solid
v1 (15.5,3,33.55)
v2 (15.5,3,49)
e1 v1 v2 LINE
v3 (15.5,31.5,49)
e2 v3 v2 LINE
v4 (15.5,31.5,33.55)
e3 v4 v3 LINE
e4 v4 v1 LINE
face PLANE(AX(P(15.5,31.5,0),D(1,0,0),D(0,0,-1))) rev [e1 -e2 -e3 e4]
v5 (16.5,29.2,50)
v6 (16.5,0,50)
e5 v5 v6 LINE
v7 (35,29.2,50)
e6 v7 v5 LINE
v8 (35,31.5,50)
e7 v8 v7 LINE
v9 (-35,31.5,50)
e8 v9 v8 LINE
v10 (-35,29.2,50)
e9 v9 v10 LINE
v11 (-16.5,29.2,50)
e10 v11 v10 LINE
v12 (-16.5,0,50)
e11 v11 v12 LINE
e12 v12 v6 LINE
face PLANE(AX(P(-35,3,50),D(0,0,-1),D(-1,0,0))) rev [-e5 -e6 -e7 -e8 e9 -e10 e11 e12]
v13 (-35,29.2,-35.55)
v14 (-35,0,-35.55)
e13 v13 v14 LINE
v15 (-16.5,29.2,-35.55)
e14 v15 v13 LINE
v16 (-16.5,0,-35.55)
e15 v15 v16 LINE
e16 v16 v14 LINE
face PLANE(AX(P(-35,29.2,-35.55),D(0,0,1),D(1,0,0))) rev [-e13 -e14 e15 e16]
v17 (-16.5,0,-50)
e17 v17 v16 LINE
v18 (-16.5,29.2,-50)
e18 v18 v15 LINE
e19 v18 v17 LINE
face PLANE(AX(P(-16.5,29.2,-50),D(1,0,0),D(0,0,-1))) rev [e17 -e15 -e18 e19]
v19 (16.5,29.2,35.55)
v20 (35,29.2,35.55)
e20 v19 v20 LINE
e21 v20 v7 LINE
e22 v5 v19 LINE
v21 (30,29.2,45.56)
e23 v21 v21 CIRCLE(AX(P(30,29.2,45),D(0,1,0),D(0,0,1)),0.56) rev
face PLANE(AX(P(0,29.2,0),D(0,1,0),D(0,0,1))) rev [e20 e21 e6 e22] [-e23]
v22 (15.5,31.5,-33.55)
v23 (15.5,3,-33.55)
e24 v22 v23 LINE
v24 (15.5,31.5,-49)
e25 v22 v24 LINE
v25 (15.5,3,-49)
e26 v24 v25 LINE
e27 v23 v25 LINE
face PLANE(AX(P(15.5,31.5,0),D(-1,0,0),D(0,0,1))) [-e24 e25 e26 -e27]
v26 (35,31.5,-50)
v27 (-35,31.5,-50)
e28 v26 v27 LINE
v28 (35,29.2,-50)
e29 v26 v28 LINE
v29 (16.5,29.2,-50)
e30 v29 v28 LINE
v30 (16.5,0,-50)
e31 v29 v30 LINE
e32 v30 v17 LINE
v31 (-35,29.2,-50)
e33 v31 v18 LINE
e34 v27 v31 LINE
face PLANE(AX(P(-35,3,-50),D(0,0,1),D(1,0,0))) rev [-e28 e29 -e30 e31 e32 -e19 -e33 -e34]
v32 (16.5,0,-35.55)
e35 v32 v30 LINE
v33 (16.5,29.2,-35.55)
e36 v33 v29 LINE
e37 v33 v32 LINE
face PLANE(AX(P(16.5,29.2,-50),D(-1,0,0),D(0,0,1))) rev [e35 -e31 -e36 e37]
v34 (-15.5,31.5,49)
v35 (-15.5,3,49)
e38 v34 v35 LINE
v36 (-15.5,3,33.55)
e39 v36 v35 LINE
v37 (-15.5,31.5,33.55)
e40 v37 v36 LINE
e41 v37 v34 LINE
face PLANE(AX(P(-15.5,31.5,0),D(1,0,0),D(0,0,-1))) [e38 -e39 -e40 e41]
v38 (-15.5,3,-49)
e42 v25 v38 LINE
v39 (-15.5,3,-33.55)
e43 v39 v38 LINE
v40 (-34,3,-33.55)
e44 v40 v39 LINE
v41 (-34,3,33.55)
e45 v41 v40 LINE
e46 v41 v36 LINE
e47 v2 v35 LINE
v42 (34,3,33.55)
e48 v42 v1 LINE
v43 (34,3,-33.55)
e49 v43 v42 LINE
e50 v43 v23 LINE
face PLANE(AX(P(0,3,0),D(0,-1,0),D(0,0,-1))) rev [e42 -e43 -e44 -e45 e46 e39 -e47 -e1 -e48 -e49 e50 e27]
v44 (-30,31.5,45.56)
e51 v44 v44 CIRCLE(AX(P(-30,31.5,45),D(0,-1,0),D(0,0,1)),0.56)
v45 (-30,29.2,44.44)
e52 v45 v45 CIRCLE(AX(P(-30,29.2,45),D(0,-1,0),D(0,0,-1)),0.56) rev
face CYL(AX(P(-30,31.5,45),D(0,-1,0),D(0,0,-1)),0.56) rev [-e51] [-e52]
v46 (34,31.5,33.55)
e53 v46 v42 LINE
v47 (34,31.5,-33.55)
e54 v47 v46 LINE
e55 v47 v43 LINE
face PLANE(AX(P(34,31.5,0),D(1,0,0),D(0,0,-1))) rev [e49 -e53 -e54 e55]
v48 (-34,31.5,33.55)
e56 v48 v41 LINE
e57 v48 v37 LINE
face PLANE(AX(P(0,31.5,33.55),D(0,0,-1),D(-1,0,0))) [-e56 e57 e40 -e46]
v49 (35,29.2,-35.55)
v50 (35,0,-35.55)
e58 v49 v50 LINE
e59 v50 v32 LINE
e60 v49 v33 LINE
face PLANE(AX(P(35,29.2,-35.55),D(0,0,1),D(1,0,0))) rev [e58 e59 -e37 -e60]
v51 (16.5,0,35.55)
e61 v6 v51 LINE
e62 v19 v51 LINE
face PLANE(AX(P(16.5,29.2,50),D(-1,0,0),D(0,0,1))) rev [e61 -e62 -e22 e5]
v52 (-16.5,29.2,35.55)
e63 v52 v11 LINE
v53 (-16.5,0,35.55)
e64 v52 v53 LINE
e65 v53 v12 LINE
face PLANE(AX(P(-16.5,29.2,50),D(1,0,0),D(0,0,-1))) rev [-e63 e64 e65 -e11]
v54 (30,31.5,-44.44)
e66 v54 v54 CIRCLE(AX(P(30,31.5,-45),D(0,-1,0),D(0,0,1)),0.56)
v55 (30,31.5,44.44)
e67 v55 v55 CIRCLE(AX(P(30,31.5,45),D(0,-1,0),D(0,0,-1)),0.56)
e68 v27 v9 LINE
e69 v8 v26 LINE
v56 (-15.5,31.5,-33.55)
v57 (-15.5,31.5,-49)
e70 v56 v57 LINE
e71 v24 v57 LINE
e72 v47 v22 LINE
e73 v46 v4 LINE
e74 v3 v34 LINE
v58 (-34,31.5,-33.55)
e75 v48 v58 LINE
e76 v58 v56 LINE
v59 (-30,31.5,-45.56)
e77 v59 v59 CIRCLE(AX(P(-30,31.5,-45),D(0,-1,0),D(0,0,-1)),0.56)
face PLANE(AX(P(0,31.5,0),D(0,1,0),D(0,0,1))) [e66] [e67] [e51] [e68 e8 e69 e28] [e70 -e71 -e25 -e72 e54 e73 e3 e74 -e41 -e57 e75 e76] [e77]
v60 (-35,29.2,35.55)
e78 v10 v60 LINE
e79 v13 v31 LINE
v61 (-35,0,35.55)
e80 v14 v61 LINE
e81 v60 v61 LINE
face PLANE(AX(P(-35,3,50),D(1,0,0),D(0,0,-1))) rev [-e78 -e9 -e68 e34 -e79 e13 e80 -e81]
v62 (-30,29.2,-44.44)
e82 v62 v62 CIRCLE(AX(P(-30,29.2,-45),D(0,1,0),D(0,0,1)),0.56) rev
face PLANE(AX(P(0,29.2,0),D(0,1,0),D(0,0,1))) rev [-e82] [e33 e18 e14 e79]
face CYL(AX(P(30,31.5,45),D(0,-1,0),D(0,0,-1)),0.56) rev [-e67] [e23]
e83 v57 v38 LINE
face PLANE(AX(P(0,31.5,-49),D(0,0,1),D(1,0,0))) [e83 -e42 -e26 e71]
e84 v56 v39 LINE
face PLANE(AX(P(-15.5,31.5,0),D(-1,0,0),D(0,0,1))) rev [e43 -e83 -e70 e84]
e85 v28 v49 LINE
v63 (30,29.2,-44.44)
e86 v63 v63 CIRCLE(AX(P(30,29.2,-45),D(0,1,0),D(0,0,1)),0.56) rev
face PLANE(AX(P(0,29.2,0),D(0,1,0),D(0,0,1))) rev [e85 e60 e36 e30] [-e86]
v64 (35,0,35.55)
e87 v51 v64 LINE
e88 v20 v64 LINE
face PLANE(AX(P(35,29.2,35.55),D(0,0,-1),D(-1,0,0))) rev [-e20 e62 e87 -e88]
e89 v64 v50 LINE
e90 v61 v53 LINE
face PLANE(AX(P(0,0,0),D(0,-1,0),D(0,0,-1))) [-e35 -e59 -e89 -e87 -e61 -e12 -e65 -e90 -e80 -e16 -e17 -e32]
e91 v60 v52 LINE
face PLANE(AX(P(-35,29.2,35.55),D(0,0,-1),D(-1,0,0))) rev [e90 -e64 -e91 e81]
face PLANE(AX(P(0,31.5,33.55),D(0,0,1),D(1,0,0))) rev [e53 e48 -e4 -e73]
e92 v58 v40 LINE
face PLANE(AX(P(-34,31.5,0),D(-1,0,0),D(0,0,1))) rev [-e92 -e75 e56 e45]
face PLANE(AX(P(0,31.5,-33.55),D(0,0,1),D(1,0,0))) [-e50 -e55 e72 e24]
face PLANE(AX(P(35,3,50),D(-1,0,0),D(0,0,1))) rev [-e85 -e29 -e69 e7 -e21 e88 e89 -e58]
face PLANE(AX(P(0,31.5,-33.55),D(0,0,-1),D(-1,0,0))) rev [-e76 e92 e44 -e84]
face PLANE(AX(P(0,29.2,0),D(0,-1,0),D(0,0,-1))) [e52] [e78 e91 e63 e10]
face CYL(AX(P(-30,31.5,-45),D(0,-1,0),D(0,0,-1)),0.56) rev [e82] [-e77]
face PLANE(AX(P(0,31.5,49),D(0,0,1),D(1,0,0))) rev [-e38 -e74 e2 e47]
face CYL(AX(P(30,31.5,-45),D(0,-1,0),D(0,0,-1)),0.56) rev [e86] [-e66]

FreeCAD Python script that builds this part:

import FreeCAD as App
import Part
import Sketcher
from FreeCAD import Vector

doc = App.newDocument("Part")
params = doc.addObject("Spreadsheet::Sheet", "Params")
for row, (alias, value) in enumerate([
    ("sketch1_width", "70 mm"),
    ("sketch1_height", "100 mm"),
    ("pad1_length", "3 mm"),
    ("sketch2_width", "70 mm"),
    ("sketch2_width2", "31 mm"),
    ("sketch2_height", "100 mm"),
    ("sketch2_width3", "18.5 mm"),
    ("sketch2_height2", "67.1 mm"),
    ("pad2_length", "28.5 mm"),
    ("sketch3_diameter", "1.12 mm"),
    ("sketch4_width", "18.5 mm"),
    ("sketch4_height", "14.45 mm"),
    ("pocket2_length", "29.2 mm"),
], start=1):
    params.set(f"A{row}", alias)
    params.set(f"B{row}", "=" + value)
    params.setAlias(f"B{row}", alias)

body = doc.addObject("PartDesign::Body", "Body")

# Sketch on XZ plane
sketch1 = doc.addObject("Sketcher::SketchObject", "Sketch")
body.addObject(sketch1)
sketch1.AttachmentSupport = (doc.XZ_Plane, [""])
sketch1.MapMode = "FlatFace"
sketch1.addGeometry([
    Part.LineSegment(Vector(-35, -50, 0), Vector(-35, 50, 0)),
    Part.LineSegment(Vector(-35, 50, 0), Vector(35, 50, 0)),
    Part.LineSegment(Vector(35, 50, 0), Vector(35, -50, 0)),
    Part.LineSegment(Vector(35, -50, 0), Vector(-35, -50, 0)),
], False)
sketch1.addConstraint([
    Sketcher.Constraint("Coincident", 0, 2, 1, 1),
    Sketcher.Constraint("Coincident", 1, 2, 2, 1),
    Sketcher.Constraint("Coincident", 2, 2, 3, 1),
    Sketcher.Constraint("Coincident", 3, 2, 0, 1),
    Sketcher.Constraint("Vertical", 0),
    Sketcher.Constraint("Horizontal", 1),
    Sketcher.Constraint("Vertical", 2),
    Sketcher.Constraint("Horizontal", 3),
    Sketcher.Constraint("Symmetric", 0, 2, 2, 2, -1, 1),
    Sketcher.Constraint("DistanceX", 1, 1, 1, 2, 70.0),
    Sketcher.Constraint("DistanceY", 0, 1, 0, 2, 100.0),
])
sketch1.setExpression("Constraints[9]", "Params.sketch1_width")
sketch1.setExpression("Constraints[10]", "Params.sketch1_height")
pad1 = doc.addObject("PartDesign::Pad", "Pad")
body.addObject(pad1)
pad1.Profile = sketch1
pad1.setExpression("Length", "Params.pad1_length")
pad1.Reversed = True

# Sketch on XZ plane
sketch2 = doc.addObject("Sketcher::SketchObject", "Sketch001")
body.addObject(sketch2)
sketch2.AttachmentSupport = (doc.XZ_Plane, [""])
sketch2.MapMode = "FlatFace"
sketch2.AttachmentOffset = App.Placement(Vector(0, 0, -3), App.Rotation())
sketch2.addGeometry([
    Part.LineSegment(Vector(-35, -50, 0), Vector(-35, 50, 0)),  # 0
    Part.LineSegment(Vector(-35, 50, 0), Vector(35, 50, 0)),  # 1
    Part.LineSegment(Vector(35, 50, 0), Vector(35, -50, 0)),  # 2
    Part.LineSegment(Vector(35, -50, 0), Vector(-35, -50, 0)),  # 3
    Part.LineSegment(Vector(-34, 34, 0), Vector(-34, -34, 0)),  # 4
    Part.LineSegment(Vector(-34, -34, 0), Vector(-16, -34, 0)),  # 5
    Part.LineSegment(Vector(-16, -34, 0), Vector(-16, -49, 0)),  # 6
    Part.LineSegment(Vector(-16, -49, 0), Vector(16, -49, 0)),  # 7
    Part.LineSegment(Vector(16, -49, 0), Vector(16, -34, 0)),  # 8
    Part.LineSegment(Vector(16, -34, 0), Vector(34, -34, 0)),  # 9
    Part.LineSegment(Vector(34, -34, 0), Vector(34, 34, 0)),  # 10
    Part.LineSegment(Vector(34, 34, 0), Vector(16, 34, 0)),  # 11
    Part.LineSegment(Vector(16, 34, 0), Vector(16, 49, 0)),  # 12
    Part.LineSegment(Vector(16, 49, 0), Vector(-16, 49, 0)),  # 13
    Part.LineSegment(Vector(-16, 49, 0), Vector(-16, 34, 0)),  # 14
    Part.LineSegment(Vector(-16, 34, 0), Vector(-34, 34, 0)),  # 15
], False)
sketch2.addConstraint([
    Sketcher.Constraint("Coincident", 0, 2, 1, 1),
    Sketcher.Constraint("Coincident", 1, 2, 2, 1),
    Sketcher.Constraint("Coincident", 2, 2, 3, 1),
    Sketcher.Constraint("Coincident", 3, 2, 0, 1),
    Sketcher.Constraint("Coincident", 4, 2, 5, 1),
    Sketcher.Constraint("Coincident", 5, 2, 6, 1),
    Sketcher.Constraint("Coincident", 6, 2, 7, 1),
    Sketcher.Constraint("Coincident", 7, 2, 8, 1),
    Sketcher.Constraint("Coincident", 8, 2, 9, 1),
    Sketcher.Constraint("Coincident", 9, 2, 10, 1),
    Sketcher.Constraint("Coincident", 10, 2, 11, 1),
    Sketcher.Constraint("Coincident", 11, 2, 12, 1),
    Sketcher.Constraint("Coincident", 12, 2, 13, 1),
    Sketcher.Constraint("Coincident", 13, 2, 14, 1),
    Sketcher.Constraint("Coincident", 14, 2, 15, 1),
    Sketcher.Constraint("Coincident", 15, 2, 4, 1),
    Sketcher.Constraint("Vertical", 0),
    Sketcher.Constraint("Horizontal", 1),
    Sketcher.Constraint("Vertical", 2),
    Sketcher.Constraint("Horizontal", 3),
    Sketcher.Constraint("Vertical", 4),
    Sketcher.Constraint("Horizontal", 5),
    Sketcher.Constraint("Vertical", 6),
    Sketcher.Constraint("Horizontal", 7),
    Sketcher.Constraint("Vertical", 8),
    Sketcher.Constraint("Horizontal", 9),
    Sketcher.Constraint("Vertical", 10),
    Sketcher.Constraint("Horizontal", 11),
    Sketcher.Constraint("Vertical", 12),
    Sketcher.Constraint("Horizontal", 13),
    Sketcher.Constraint("Vertical", 14),
    Sketcher.Constraint("Horizontal", 15),
    Sketcher.Constraint("Symmetric", 0, 2, 2, 2, -1, 1),
    Sketcher.Constraint("Symmetric", 4, 2, 10, 2, -1, 1),
    Sketcher.Constraint("Symmetric", 6, 2, 12, 2, -1, 1),
    Sketcher.Constraint("Symmetric", 8, 2, 14, 2, -1, 1),
    Sketcher.Constraint("Symmetric", 5, 2, 8, 2, -2),
    Sketcher.Constraint("DistanceX", 1, 1, 1, 2, 70.0),
    Sketcher.Constraint("DistanceX", 7, 1, 7, 2, 31.0),
    Sketcher.Constraint("DistanceY", 0, 1, 0, 2, 100.0),
    Sketcher.Constraint("DistanceX", 5, 1, 5, 2, 18.5),
    Sketcher.Constraint("DistanceY", 4, 2, 4, 1, 67.1),
    Sketcher.Constraint("DistanceY", 6, 2, -1, 1, 49.0),
])
sketch2.setExpression("Constraints[37]", "Params.sketch2_width")
sketch2.setExpression("Constraints[38]", "Params.sketch2_width2")
sketch2.setExpression("Constraints[39]", "Params.sketch2_height")
sketch2.setExpression("Constraints[40]", "Params.sketch2_width3")
sketch2.setExpression("Constraints[41]", "Params.sketch2_height2")
pad2 = doc.addObject("PartDesign::Pad", "Pad001")
body.addObject(pad2)
pad2.Profile = sketch2
pad2.setExpression("Length", "Params.pad2_length")
pad2.Reversed = True

# Sketch on XZ plane
sketch3 = doc.addObject("Sketcher::SketchObject", "Sketch002")
body.addObject(sketch3)
sketch3.AttachmentSupport = (doc.XZ_Plane, [""])
sketch3.MapMode = "FlatFace"
sketch3.addGeometry([
    Part.Circle(Vector(-30, -45, 0), Vector(0, 0, 1), 0.6),
    Part.Circle(Vector(-30, 45, 0), Vector(0, 0, 1), 0.6),
    Part.Circle(Vector(30, -45, 0), Vector(0, 0, 1), 0.6),
    Part.Circle(Vector(30, 45, 0), Vector(0, 0, 1), 0.6),
], False)
sketch3.addConstraint([
    Sketcher.Constraint("Equal", 0, 1),
    Sketcher.Constraint("Equal", 1, 2),
    Sketcher.Constraint("Equal", 2, 3),
    Sketcher.Constraint("Symmetric", 1, 3, 2, 3, -1, 1),
    Sketcher.Constraint("Symmetric", 0, 3, 3, 3, -1, 1),
    Sketcher.Constraint("Symmetric", 0, 3, 2, 3, -2),
    Sketcher.Constraint("Diameter", 0, 1.12),
    Sketcher.Constraint("DistanceX", 0, 3, -1, 1, 30.0),
    Sketcher.Constraint("DistanceY", 0, 3, -1, 1, 45.0),
])
sketch3.setExpression("Constraints[6]", "Params.sketch3_diameter")
pocket1 = doc.addObject("PartDesign::Pocket", "Pocket")
body.addObject(pocket1)
pocket1.Profile = sketch3
pocket1.Type = "ThroughAll"

# Sketch on XZ plane
sketch4 = doc.addObject("Sketcher::SketchObject", "Sketch003")
body.addObject(sketch4)
sketch4.AttachmentSupport = (doc.XZ_Plane, [""])
sketch4.MapMode = "FlatFace"
sketch4.addGeometry([
    Part.LineSegment(Vector(-35, 50, 0), Vector(-35, 36, 0)),  # 0
    Part.LineSegment(Vector(-35, 36, 0), Vector(-16, 36, 0)),  # 1
    Part.LineSegment(Vector(-16, 36, 0), Vector(-16, 50, 0)),  # 2
    Part.LineSegment(Vector(-16, 50, 0), Vector(-35, 50, 0)),  # 3
    Part.LineSegment(Vector(16, 50, 0), Vector(16, 36, 0)),  # 4
    Part.LineSegment(Vector(16, 36, 0), Vector(35, 36, 0)),  # 5
    Part.LineSegment(Vector(35, 36, 0), Vector(35, 50, 0)),  # 6
    Part.LineSegment(Vector(35, 50, 0), Vector(16, 50, 0)),  # 7
    Part.LineSegment(Vector(16, -36, 0), Vector(16, -50, 0)),  # 8
    Part.LineSegment(Vector(16, -50, 0), Vector(35, -50, 0)),  # 9
    Part.LineSegment(Vector(35, -50, 0), Vector(35, -36, 0)),  # 10
    Part.LineSegment(Vector(35, -36, 0), Vector(16, -36, 0)),  # 11
    Part.LineSegment(Vector(-35, -36, 0), Vector(-35, -50, 0)),  # 12
    Part.LineSegment(Vector(-35, -50, 0), Vector(-16, -50, 0)),  # 13
    Part.LineSegment(Vector(-16, -50, 0), Vector(-16, -36, 0)),  # 14
    Part.LineSegment(Vector(-16, -36, 0), Vector(-35, -36, 0)),  # 15
], False)
sketch4.addConstraint([
    Sketcher.Constraint("Coincident", 0, 2, 1, 1),
    Sketcher.Constraint("Coincident", 1, 2, 2, 1),
    Sketcher.Constraint("Coincident", 2, 2, 3, 1),
    Sketcher.Constraint("Coincident", 3, 2, 0, 1),
    Sketcher.Constraint("Coincident", 4, 2, 5, 1),
    Sketcher.Constraint("Coincident", 5, 2, 6, 1),
    Sketcher.Constraint("Coincident", 6, 2, 7, 1),
    Sketcher.Constraint("Coincident", 7, 2, 4, 1),
    Sketcher.Constraint("Coincident", 8, 2, 9, 1),
    Sketcher.Constraint("Coincident", 9, 2, 10, 1),
    Sketcher.Constraint("Coincident", 10, 2, 11, 1),
    Sketcher.Constraint("Coincident", 11, 2, 8, 1),
    Sketcher.Constraint("Coincident", 12, 2, 13, 1),
    Sketcher.Constraint("Coincident", 13, 2, 14, 1),
    Sketcher.Constraint("Coincident", 14, 2, 15, 1),
    Sketcher.Constraint("Coincident", 15, 2, 12, 1),
    Sketcher.Constraint("Vertical", 0),
    Sketcher.Constraint("Horizontal", 1),
    Sketcher.Constraint("Vertical", 2),
    Sketcher.Constraint("Horizontal", 3),
    Sketcher.Constraint("Vertical", 4),
    Sketcher.Constraint("Horizontal", 5),
    Sketcher.Constraint("Vertical", 6),
    Sketcher.Constraint("Horizontal", 7),
    Sketcher.Constraint("Vertical", 8),
    Sketcher.Constraint("Horizontal", 9),
    Sketcher.Constraint("Vertical", 10),
    Sketcher.Constraint("Horizontal", 11),
    Sketcher.Constraint("Vertical", 12),
    Sketcher.Constraint("Horizontal", 13),
    Sketcher.Constraint("Vertical", 14),
    Sketcher.Constraint("Horizontal", 15),
    Sketcher.Constraint("Symmetric", 2, 2, 8, 2, -1, 1),
    Sketcher.Constraint("Symmetric", 0, 2, 10, 2, -1, 1),
    Sketcher.Constraint("Symmetric", 6, 2, 12, 2, -1, 1),
    Sketcher.Constraint("Symmetric", 4, 2, 14, 2, -1, 1),
    Sketcher.Constraint("Symmetric", 1, 2, 4, 2, -2),
    Sketcher.Constraint("Symmetric", 3, 2, 6, 2, -2),
    Sketcher.Constraint("DistanceX", 1, 1, 1, 2, 18.5),
    Sketcher.Constraint("DistanceX", 0, 2, -1, 1, 35.0),
    Sketcher.Constraint("DistanceY", -1, 1, 2, 2, 50.0),
    Sketcher.Constraint("DistanceY", 0, 2, 0, 1, 14.45),
])
sketch4.setExpression("Constraints[38]", "Params.sketch4_width")
sketch4.setExpression("Constraints[41]", "Params.sketch4_height")
pocket2 = doc.addObject("PartDesign::Pocket", "Pocket001")
body.addObject(pocket2)
pocket2.Profile = sketch4
pocket2.setExpression("Length", "Params.pocket2_length")

doc.recompute()
